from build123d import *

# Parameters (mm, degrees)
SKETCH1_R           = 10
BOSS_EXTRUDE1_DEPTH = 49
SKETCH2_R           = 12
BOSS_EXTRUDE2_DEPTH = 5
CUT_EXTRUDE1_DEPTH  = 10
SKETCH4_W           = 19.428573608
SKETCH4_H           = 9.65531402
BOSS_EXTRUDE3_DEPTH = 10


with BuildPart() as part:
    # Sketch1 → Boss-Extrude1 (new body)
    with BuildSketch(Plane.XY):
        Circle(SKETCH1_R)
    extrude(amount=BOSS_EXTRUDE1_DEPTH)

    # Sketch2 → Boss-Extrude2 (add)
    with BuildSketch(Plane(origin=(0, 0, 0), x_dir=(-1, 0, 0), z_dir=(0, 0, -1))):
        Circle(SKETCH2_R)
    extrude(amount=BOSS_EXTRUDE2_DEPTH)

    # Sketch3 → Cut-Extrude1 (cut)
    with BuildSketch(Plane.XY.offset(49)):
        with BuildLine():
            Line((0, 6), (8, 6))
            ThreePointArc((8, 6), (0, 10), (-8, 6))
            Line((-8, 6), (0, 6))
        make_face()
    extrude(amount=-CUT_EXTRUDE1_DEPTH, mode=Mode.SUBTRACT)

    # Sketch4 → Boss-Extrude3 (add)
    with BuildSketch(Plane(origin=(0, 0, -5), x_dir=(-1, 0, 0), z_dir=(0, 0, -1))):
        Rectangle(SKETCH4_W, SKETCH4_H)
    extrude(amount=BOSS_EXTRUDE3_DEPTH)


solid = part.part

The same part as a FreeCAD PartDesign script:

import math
import FreeCAD as App
import Part
import Sketcher


def add_polygon(sketch, points):
    """Adds a closed chain of lines whose ends are joined by coincident constraints."""
    first, n = sketch.GeometryCount, len(points)
    for a, b in zip(points, points[1:] + points[:1]):
        sketch.addGeometry(Part.LineSegment(App.Vector(*a, 0), App.Vector(*b, 0)), False)
    for i in range(n):
        sketch.addConstraint(Sketcher.Constraint("Coincident", first + i, 2, first + (i + 1) % n, 1))

doc = App.newDocument("Part")
body = doc.addObject("PartDesign::Body", "Body")

# Sketch on XY plane
sketch1 = body.newObject("Sketcher::SketchObject", "Sketch")
sketch1.AttachmentSupport = (doc.getObject("XY_Plane"), [""])
sketch1.MapMode = "FlatFace"
sketch1.addGeometry(Part.Circle(App.Vector(0, 0, 0), App.Vector(0, 0, 1), 10), False)
sketch1.addConstraint([
    Sketcher.Constraint("Coincident", 0, 3, -1, 1),
    Sketcher.Constraint("Diameter", 0, 20.0),
])
pad1 = body.newObject("PartDesign::Pad", "Pad")
pad1.Profile = sketch1
pad1.Length = 49

# Sketch on XY plane
sketch2 = body.newObject("Sketcher::SketchObject", "Sketch001")
sketch2.AttachmentSupport = (doc.getObject("XY_Plane"), [""])
sketch2.MapMode = "FlatFace"
sketch2.addGeometry(Part.Circle(App.Vector(0, 0, 0), App.Vector(0, 0, 1), 12), False)
sketch2.addConstraint([
    Sketcher.Constraint("Coincident", 0, 3, -1, 1),
    Sketcher.Constraint("Diameter", 0, 24.0),
])
pad2 = body.newObject("PartDesign::Pad", "Pad001")
pad2.Profile = sketch2
pad2.Length = 5
pad2.Reversed = True

# Sketch on XY plane
sketch3 = body.newObject("Sketcher::SketchObject", "Sketch002")
sketch3.AttachmentSupport = (doc.getObject("XY_Plane"), [""])
sketch3.MapMode = "FlatFace"
sketch3.AttachmentOffset = App.Placement(App.Vector(0, 0, 49), App.Rotation())
sketch3.addGeometry([
    Part.ArcOfCircle(Part.Circle(App.Vector(0, 0, 0), App.Vector(0, 0, 1), 10), math.radians(36.869898), math.radians(143.130102)),
    Part.LineSegment(App.Vector(-8, 6, 0), App.Vector(8, 6, 0)),
], False)
sketch3.addConstraint([
    Sketcher.Constraint("Coincident", 0, 1, 1, 2),
    Sketcher.Constraint("Coincident", 1, 1, 0, 2),
    Sketcher.Constraint("Horizontal", 1),
    Sketcher.Constraint("Coincident", 0, 3, -1, 1),
    Sketcher.Constraint("Radius", 0, 10.0),
    Sketcher.Constraint("DistanceX", 1, 1, 1, 2, 16.0),
])
pocket1 = body.newObject("PartDesign::Pocket", "Pocket")
pocket1.Profile = sketch3
pocket1.Length = 10

# Sketch on XY plane
sketch4 = body.newObject("Sketcher::SketchObject", "Sketch003")
sketch4.AttachmentSupport = (doc.getObject("XY_Plane"), [""])
sketch4.MapMode = "FlatFace"
sketch4.AttachmentOffset = App.Placement(App.Vector(0, 0, -5), App.Rotation())
add_polygon(sketch4, [(9.714287, 4.827657), (9.714287, -4.827657), (-9.714287, -4.827657), (-9.714287, 4.827657)])  # lines 0-3
sketch4.addConstraint([
    Sketcher.Constraint("Vertical", 0),
    Sketcher.Constraint("Horizontal", 1),
    Sketcher.Constraint("Vertical", 2),
    Sketcher.Constraint("Horizontal", 3),
    Sketcher.Constraint("Symmetric", 0, 2, 2, 2, -1, 1),
    Sketcher.Constraint("DistanceX", 1, 2, 1, 1, 19.428574),
    Sketcher.Constraint("DistanceY", 0, 2, 0, 1, 9.655314),
])
pad3 = body.newObject("PartDesign::Pad", "Pad002")
pad3.Profile = sketch4
pad3.Length = 10
pad3.Reversed = True

doc.recompute()
